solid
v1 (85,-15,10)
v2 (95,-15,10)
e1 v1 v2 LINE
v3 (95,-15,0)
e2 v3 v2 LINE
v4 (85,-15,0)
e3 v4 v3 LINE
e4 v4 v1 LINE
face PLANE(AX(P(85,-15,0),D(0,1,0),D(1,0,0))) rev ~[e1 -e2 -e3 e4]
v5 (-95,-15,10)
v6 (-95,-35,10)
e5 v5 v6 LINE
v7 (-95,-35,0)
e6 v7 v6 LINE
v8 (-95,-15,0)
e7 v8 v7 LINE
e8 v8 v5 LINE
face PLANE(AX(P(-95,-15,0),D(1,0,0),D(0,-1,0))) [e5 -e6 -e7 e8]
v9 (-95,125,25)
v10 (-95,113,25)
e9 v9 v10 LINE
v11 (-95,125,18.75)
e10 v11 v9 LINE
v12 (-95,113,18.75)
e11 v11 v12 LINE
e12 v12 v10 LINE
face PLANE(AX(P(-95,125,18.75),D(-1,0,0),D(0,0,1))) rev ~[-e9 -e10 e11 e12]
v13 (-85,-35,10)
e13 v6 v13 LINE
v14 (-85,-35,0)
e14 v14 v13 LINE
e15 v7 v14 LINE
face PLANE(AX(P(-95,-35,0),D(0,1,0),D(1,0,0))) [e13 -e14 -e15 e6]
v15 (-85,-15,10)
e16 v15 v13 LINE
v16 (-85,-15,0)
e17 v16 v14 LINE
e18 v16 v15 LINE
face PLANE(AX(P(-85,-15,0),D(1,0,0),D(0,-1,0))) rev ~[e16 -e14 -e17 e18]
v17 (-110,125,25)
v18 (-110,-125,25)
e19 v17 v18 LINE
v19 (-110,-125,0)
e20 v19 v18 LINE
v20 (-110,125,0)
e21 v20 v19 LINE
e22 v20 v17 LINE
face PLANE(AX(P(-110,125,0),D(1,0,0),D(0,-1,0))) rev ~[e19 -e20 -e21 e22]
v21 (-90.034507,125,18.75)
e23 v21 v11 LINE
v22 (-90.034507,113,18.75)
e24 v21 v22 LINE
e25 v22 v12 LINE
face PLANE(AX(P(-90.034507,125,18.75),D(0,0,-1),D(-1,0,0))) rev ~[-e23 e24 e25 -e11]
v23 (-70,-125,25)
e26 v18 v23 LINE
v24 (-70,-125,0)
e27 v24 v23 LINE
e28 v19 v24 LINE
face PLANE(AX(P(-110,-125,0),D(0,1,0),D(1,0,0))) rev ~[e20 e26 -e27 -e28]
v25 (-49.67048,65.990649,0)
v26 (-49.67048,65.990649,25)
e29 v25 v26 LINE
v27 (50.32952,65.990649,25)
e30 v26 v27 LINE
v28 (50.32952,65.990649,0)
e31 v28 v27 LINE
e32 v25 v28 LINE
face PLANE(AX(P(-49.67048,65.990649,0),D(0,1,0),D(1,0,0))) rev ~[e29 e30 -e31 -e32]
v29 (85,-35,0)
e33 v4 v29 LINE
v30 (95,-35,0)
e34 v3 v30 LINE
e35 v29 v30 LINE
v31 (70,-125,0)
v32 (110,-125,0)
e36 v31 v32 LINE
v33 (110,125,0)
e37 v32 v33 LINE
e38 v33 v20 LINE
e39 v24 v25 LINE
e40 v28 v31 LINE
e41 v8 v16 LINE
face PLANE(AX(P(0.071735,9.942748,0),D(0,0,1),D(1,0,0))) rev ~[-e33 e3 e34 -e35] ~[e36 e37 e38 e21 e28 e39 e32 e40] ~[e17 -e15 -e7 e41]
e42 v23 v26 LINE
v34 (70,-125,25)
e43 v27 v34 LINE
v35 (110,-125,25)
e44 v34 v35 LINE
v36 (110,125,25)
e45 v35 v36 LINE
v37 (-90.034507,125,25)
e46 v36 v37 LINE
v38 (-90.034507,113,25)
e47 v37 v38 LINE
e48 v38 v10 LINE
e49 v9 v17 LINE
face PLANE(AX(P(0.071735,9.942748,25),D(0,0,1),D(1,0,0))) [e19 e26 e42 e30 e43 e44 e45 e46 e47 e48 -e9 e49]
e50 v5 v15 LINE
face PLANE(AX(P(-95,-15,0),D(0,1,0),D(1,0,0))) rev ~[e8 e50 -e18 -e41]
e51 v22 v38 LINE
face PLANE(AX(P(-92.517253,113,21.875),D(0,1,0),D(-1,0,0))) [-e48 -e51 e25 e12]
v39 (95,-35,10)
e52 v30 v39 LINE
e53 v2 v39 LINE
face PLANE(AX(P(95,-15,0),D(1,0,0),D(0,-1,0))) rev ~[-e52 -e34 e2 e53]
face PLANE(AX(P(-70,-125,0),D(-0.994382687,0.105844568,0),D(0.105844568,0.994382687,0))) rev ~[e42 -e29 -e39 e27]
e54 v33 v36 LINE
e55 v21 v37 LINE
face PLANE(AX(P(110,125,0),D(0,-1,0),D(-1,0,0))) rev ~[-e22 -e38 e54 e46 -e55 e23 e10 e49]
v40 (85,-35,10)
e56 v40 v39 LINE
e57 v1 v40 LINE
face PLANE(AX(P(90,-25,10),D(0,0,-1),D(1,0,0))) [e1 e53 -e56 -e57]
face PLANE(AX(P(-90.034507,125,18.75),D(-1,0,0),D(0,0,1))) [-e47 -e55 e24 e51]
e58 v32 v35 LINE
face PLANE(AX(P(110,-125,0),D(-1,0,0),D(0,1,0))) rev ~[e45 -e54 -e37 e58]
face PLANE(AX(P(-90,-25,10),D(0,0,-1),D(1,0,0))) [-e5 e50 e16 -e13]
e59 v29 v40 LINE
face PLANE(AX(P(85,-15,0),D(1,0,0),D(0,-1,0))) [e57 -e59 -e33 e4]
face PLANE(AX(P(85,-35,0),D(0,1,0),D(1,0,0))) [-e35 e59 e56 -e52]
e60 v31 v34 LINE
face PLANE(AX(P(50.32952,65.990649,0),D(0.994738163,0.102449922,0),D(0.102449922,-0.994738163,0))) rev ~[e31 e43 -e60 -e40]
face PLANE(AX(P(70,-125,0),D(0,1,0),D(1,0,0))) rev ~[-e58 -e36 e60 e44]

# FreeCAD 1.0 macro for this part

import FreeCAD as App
import Part
import Sketcher
from FreeCAD import Vector
Q = App.Units.Quantity


def add_polygon(sketch, points):
    """Adds a closed chain of lines whose ends are joined by coincident constraints."""
    first, n = sketch.GeometryCount, len(points)
    for a, b in zip(points, points[1:] + points[:1]):
        sketch.addGeometry(Part.LineSegment(App.Vector(*a, 0), App.Vector(*b, 0)), False)
    for i in range(n):
        sketch.addConstraint(Sketcher.Constraint("Coincident", first + i, 2, first + (i + 1) % n, 1))

doc = App.newDocument("Part")
body = doc.addObject("PartDesign::Body", "Body")

# Sketch on XY plane
sketch1 = doc.addObject("Sketcher::SketchObject", "Sketch")
body.addObject(sketch1)
sketch1.AttachmentSupport = (doc.XY_Plane, [""])
sketch1.MapMode = "FlatFace"
add_polygon(sketch1, [(110, -125), (110, 125), (-110, 125), (-110, -125), (-70, -125), (-50, 66), (50, 66), (70, -125)])  # lines 0-7
sketch1.addConstraint([
    Sketcher.Constraint("Vertical", 0),
    Sketcher.Constraint("Horizontal", 1),
    Sketcher.Constraint("Vertical", 2),
    Sketcher.Constraint("Horizontal", 3),
    Sketcher.Constraint("Horizontal", 5),
    Sketcher.Constraint("Horizontal", 7),
    Sketcher.Constraint("Symmetric", 0, 2, 2, 2, -1, 1),
    Sketcher.Constraint("Symmetric", 3, 2, 6, 2, -2),
    Sketcher.Constraint("DistanceX", 1, 2, 1, 1, Q("220 mm")),
    Sketcher.Constraint("DistanceX", 3, 1, 3, 2, Q("40 mm")),
    Sketcher.Constraint("DistanceX", 5, 1, 5, 2, Q("100 mm")),
    Sketcher.Constraint("DistanceY", 0, 1, 0, 2, Q("250 mm")),
    Sketcher.Constraint("DistanceX", 4, 2, -1, 1, Q("49.67048 mm")),
    Sketcher.Constraint("DistanceY", -1, 1, 4, 2, Q("65.990649 mm")),
])
pad1 = doc.addObject("PartDesign::Pad", "Pad")
body.addObject(pad1)
pad1.Profile = sketch1
pad1.Length = 25

# Sketch on XZ plane
sketch2 = doc.addObject("Sketcher::SketchObject", "Sketch001")
body.addObject(sketch2)
sketch2.AttachmentSupport = (doc.XZ_Plane, [""])
sketch2.MapMode = "FlatFace"
sketch2.AttachmentOffset = App.Placement(Vector(0, 0, -125), App.Rotation())
add_polygon(sketch2, [(-90, 25), (-90, 18.8), (-95, 18.8), (-95, 25)])  # lines 0-3
sketch2.addConstraint([
    Sketcher.Constraint("Vertical", 0),
    Sketcher.Constraint("Horizontal", 1),
    Sketcher.Constraint("Vertical", 2),
    Sketcher.Constraint("Horizontal", 3),
    Sketcher.Constraint("DistanceX", 1, 2, -1, 1, Q("95 mm")),
    Sketcher.Constraint("DistanceY", -1, 1, 2, 2, Q("25 mm")),
    Sketcher.Constraint("DistanceY", 0, 2, 0, 1, Q("6.25 mm")),
    Sketcher.Constraint("DistanceX", 1, 2, 1, 1, Q("4.965493 mm")),
])
pocket1 = doc.addObject("PartDesign::Pocket", "Pocket")
body.addObject(pocket1)
pocket1.Profile = sketch2
pocket1.Length = 12
pocket1.Reversed = True

# Sketch on XY plane
sketch3 = doc.addObject("Sketcher::SketchObject", "Sketch002")
body.addObject(sketch3)
sketch3.AttachmentSupport = (doc.XY_Plane, [""])
sketch3.MapMode = "FlatFace"
add_polygon(sketch3, [(-95, -35), (-95, -15), (-85, -15), (-85, -35)])  # lines 0-3
add_polygon(sketch3, [(85, -35), (85, -15), (95, -15), (95, -35)])  # lines 4-7
sketch3.addConstraint([
    Sketcher.Constraint("Vertical", 0),
    Sketcher.Constraint("Horizontal", 1),
    Sketcher.Constraint("Vertical", 2),
    Sketcher.Constraint("Horizontal", 3),
    Sketcher.Constraint("Vertical", 4),
    Sketcher.Constraint("Horizontal", 5),
    Sketcher.Constraint("Vertical", 6),
    Sketcher.Constraint("Horizontal", 7),
    Sketcher.Constraint("Symmetric", 1, 2, 4, 2, -2),
    Sketcher.Constraint("Symmetric", 3, 2, 6, 2, -2),
    Sketcher.Constraint("DistanceX", 1, 1, 1, 2, Q("10 mm")),
    Sketcher.Constraint("DistanceY", 0, 1, 0, 2, Q("20 mm")),
    Sketcher.Constraint("DistanceX", 0, 2, -1, 1, Q("95 mm")),
    Sketcher.Constraint("DistanceY", 0, 2, -1, 1, Q("15 mm")),
])
pocket2 = doc.addObject("PartDesign::Pocket", "Pocket001")
body.addObject(pocket2)
pocket2.Profile = sketch3
pocket2.Length = 10
pocket2.Reversed = True

doc.recompute()
